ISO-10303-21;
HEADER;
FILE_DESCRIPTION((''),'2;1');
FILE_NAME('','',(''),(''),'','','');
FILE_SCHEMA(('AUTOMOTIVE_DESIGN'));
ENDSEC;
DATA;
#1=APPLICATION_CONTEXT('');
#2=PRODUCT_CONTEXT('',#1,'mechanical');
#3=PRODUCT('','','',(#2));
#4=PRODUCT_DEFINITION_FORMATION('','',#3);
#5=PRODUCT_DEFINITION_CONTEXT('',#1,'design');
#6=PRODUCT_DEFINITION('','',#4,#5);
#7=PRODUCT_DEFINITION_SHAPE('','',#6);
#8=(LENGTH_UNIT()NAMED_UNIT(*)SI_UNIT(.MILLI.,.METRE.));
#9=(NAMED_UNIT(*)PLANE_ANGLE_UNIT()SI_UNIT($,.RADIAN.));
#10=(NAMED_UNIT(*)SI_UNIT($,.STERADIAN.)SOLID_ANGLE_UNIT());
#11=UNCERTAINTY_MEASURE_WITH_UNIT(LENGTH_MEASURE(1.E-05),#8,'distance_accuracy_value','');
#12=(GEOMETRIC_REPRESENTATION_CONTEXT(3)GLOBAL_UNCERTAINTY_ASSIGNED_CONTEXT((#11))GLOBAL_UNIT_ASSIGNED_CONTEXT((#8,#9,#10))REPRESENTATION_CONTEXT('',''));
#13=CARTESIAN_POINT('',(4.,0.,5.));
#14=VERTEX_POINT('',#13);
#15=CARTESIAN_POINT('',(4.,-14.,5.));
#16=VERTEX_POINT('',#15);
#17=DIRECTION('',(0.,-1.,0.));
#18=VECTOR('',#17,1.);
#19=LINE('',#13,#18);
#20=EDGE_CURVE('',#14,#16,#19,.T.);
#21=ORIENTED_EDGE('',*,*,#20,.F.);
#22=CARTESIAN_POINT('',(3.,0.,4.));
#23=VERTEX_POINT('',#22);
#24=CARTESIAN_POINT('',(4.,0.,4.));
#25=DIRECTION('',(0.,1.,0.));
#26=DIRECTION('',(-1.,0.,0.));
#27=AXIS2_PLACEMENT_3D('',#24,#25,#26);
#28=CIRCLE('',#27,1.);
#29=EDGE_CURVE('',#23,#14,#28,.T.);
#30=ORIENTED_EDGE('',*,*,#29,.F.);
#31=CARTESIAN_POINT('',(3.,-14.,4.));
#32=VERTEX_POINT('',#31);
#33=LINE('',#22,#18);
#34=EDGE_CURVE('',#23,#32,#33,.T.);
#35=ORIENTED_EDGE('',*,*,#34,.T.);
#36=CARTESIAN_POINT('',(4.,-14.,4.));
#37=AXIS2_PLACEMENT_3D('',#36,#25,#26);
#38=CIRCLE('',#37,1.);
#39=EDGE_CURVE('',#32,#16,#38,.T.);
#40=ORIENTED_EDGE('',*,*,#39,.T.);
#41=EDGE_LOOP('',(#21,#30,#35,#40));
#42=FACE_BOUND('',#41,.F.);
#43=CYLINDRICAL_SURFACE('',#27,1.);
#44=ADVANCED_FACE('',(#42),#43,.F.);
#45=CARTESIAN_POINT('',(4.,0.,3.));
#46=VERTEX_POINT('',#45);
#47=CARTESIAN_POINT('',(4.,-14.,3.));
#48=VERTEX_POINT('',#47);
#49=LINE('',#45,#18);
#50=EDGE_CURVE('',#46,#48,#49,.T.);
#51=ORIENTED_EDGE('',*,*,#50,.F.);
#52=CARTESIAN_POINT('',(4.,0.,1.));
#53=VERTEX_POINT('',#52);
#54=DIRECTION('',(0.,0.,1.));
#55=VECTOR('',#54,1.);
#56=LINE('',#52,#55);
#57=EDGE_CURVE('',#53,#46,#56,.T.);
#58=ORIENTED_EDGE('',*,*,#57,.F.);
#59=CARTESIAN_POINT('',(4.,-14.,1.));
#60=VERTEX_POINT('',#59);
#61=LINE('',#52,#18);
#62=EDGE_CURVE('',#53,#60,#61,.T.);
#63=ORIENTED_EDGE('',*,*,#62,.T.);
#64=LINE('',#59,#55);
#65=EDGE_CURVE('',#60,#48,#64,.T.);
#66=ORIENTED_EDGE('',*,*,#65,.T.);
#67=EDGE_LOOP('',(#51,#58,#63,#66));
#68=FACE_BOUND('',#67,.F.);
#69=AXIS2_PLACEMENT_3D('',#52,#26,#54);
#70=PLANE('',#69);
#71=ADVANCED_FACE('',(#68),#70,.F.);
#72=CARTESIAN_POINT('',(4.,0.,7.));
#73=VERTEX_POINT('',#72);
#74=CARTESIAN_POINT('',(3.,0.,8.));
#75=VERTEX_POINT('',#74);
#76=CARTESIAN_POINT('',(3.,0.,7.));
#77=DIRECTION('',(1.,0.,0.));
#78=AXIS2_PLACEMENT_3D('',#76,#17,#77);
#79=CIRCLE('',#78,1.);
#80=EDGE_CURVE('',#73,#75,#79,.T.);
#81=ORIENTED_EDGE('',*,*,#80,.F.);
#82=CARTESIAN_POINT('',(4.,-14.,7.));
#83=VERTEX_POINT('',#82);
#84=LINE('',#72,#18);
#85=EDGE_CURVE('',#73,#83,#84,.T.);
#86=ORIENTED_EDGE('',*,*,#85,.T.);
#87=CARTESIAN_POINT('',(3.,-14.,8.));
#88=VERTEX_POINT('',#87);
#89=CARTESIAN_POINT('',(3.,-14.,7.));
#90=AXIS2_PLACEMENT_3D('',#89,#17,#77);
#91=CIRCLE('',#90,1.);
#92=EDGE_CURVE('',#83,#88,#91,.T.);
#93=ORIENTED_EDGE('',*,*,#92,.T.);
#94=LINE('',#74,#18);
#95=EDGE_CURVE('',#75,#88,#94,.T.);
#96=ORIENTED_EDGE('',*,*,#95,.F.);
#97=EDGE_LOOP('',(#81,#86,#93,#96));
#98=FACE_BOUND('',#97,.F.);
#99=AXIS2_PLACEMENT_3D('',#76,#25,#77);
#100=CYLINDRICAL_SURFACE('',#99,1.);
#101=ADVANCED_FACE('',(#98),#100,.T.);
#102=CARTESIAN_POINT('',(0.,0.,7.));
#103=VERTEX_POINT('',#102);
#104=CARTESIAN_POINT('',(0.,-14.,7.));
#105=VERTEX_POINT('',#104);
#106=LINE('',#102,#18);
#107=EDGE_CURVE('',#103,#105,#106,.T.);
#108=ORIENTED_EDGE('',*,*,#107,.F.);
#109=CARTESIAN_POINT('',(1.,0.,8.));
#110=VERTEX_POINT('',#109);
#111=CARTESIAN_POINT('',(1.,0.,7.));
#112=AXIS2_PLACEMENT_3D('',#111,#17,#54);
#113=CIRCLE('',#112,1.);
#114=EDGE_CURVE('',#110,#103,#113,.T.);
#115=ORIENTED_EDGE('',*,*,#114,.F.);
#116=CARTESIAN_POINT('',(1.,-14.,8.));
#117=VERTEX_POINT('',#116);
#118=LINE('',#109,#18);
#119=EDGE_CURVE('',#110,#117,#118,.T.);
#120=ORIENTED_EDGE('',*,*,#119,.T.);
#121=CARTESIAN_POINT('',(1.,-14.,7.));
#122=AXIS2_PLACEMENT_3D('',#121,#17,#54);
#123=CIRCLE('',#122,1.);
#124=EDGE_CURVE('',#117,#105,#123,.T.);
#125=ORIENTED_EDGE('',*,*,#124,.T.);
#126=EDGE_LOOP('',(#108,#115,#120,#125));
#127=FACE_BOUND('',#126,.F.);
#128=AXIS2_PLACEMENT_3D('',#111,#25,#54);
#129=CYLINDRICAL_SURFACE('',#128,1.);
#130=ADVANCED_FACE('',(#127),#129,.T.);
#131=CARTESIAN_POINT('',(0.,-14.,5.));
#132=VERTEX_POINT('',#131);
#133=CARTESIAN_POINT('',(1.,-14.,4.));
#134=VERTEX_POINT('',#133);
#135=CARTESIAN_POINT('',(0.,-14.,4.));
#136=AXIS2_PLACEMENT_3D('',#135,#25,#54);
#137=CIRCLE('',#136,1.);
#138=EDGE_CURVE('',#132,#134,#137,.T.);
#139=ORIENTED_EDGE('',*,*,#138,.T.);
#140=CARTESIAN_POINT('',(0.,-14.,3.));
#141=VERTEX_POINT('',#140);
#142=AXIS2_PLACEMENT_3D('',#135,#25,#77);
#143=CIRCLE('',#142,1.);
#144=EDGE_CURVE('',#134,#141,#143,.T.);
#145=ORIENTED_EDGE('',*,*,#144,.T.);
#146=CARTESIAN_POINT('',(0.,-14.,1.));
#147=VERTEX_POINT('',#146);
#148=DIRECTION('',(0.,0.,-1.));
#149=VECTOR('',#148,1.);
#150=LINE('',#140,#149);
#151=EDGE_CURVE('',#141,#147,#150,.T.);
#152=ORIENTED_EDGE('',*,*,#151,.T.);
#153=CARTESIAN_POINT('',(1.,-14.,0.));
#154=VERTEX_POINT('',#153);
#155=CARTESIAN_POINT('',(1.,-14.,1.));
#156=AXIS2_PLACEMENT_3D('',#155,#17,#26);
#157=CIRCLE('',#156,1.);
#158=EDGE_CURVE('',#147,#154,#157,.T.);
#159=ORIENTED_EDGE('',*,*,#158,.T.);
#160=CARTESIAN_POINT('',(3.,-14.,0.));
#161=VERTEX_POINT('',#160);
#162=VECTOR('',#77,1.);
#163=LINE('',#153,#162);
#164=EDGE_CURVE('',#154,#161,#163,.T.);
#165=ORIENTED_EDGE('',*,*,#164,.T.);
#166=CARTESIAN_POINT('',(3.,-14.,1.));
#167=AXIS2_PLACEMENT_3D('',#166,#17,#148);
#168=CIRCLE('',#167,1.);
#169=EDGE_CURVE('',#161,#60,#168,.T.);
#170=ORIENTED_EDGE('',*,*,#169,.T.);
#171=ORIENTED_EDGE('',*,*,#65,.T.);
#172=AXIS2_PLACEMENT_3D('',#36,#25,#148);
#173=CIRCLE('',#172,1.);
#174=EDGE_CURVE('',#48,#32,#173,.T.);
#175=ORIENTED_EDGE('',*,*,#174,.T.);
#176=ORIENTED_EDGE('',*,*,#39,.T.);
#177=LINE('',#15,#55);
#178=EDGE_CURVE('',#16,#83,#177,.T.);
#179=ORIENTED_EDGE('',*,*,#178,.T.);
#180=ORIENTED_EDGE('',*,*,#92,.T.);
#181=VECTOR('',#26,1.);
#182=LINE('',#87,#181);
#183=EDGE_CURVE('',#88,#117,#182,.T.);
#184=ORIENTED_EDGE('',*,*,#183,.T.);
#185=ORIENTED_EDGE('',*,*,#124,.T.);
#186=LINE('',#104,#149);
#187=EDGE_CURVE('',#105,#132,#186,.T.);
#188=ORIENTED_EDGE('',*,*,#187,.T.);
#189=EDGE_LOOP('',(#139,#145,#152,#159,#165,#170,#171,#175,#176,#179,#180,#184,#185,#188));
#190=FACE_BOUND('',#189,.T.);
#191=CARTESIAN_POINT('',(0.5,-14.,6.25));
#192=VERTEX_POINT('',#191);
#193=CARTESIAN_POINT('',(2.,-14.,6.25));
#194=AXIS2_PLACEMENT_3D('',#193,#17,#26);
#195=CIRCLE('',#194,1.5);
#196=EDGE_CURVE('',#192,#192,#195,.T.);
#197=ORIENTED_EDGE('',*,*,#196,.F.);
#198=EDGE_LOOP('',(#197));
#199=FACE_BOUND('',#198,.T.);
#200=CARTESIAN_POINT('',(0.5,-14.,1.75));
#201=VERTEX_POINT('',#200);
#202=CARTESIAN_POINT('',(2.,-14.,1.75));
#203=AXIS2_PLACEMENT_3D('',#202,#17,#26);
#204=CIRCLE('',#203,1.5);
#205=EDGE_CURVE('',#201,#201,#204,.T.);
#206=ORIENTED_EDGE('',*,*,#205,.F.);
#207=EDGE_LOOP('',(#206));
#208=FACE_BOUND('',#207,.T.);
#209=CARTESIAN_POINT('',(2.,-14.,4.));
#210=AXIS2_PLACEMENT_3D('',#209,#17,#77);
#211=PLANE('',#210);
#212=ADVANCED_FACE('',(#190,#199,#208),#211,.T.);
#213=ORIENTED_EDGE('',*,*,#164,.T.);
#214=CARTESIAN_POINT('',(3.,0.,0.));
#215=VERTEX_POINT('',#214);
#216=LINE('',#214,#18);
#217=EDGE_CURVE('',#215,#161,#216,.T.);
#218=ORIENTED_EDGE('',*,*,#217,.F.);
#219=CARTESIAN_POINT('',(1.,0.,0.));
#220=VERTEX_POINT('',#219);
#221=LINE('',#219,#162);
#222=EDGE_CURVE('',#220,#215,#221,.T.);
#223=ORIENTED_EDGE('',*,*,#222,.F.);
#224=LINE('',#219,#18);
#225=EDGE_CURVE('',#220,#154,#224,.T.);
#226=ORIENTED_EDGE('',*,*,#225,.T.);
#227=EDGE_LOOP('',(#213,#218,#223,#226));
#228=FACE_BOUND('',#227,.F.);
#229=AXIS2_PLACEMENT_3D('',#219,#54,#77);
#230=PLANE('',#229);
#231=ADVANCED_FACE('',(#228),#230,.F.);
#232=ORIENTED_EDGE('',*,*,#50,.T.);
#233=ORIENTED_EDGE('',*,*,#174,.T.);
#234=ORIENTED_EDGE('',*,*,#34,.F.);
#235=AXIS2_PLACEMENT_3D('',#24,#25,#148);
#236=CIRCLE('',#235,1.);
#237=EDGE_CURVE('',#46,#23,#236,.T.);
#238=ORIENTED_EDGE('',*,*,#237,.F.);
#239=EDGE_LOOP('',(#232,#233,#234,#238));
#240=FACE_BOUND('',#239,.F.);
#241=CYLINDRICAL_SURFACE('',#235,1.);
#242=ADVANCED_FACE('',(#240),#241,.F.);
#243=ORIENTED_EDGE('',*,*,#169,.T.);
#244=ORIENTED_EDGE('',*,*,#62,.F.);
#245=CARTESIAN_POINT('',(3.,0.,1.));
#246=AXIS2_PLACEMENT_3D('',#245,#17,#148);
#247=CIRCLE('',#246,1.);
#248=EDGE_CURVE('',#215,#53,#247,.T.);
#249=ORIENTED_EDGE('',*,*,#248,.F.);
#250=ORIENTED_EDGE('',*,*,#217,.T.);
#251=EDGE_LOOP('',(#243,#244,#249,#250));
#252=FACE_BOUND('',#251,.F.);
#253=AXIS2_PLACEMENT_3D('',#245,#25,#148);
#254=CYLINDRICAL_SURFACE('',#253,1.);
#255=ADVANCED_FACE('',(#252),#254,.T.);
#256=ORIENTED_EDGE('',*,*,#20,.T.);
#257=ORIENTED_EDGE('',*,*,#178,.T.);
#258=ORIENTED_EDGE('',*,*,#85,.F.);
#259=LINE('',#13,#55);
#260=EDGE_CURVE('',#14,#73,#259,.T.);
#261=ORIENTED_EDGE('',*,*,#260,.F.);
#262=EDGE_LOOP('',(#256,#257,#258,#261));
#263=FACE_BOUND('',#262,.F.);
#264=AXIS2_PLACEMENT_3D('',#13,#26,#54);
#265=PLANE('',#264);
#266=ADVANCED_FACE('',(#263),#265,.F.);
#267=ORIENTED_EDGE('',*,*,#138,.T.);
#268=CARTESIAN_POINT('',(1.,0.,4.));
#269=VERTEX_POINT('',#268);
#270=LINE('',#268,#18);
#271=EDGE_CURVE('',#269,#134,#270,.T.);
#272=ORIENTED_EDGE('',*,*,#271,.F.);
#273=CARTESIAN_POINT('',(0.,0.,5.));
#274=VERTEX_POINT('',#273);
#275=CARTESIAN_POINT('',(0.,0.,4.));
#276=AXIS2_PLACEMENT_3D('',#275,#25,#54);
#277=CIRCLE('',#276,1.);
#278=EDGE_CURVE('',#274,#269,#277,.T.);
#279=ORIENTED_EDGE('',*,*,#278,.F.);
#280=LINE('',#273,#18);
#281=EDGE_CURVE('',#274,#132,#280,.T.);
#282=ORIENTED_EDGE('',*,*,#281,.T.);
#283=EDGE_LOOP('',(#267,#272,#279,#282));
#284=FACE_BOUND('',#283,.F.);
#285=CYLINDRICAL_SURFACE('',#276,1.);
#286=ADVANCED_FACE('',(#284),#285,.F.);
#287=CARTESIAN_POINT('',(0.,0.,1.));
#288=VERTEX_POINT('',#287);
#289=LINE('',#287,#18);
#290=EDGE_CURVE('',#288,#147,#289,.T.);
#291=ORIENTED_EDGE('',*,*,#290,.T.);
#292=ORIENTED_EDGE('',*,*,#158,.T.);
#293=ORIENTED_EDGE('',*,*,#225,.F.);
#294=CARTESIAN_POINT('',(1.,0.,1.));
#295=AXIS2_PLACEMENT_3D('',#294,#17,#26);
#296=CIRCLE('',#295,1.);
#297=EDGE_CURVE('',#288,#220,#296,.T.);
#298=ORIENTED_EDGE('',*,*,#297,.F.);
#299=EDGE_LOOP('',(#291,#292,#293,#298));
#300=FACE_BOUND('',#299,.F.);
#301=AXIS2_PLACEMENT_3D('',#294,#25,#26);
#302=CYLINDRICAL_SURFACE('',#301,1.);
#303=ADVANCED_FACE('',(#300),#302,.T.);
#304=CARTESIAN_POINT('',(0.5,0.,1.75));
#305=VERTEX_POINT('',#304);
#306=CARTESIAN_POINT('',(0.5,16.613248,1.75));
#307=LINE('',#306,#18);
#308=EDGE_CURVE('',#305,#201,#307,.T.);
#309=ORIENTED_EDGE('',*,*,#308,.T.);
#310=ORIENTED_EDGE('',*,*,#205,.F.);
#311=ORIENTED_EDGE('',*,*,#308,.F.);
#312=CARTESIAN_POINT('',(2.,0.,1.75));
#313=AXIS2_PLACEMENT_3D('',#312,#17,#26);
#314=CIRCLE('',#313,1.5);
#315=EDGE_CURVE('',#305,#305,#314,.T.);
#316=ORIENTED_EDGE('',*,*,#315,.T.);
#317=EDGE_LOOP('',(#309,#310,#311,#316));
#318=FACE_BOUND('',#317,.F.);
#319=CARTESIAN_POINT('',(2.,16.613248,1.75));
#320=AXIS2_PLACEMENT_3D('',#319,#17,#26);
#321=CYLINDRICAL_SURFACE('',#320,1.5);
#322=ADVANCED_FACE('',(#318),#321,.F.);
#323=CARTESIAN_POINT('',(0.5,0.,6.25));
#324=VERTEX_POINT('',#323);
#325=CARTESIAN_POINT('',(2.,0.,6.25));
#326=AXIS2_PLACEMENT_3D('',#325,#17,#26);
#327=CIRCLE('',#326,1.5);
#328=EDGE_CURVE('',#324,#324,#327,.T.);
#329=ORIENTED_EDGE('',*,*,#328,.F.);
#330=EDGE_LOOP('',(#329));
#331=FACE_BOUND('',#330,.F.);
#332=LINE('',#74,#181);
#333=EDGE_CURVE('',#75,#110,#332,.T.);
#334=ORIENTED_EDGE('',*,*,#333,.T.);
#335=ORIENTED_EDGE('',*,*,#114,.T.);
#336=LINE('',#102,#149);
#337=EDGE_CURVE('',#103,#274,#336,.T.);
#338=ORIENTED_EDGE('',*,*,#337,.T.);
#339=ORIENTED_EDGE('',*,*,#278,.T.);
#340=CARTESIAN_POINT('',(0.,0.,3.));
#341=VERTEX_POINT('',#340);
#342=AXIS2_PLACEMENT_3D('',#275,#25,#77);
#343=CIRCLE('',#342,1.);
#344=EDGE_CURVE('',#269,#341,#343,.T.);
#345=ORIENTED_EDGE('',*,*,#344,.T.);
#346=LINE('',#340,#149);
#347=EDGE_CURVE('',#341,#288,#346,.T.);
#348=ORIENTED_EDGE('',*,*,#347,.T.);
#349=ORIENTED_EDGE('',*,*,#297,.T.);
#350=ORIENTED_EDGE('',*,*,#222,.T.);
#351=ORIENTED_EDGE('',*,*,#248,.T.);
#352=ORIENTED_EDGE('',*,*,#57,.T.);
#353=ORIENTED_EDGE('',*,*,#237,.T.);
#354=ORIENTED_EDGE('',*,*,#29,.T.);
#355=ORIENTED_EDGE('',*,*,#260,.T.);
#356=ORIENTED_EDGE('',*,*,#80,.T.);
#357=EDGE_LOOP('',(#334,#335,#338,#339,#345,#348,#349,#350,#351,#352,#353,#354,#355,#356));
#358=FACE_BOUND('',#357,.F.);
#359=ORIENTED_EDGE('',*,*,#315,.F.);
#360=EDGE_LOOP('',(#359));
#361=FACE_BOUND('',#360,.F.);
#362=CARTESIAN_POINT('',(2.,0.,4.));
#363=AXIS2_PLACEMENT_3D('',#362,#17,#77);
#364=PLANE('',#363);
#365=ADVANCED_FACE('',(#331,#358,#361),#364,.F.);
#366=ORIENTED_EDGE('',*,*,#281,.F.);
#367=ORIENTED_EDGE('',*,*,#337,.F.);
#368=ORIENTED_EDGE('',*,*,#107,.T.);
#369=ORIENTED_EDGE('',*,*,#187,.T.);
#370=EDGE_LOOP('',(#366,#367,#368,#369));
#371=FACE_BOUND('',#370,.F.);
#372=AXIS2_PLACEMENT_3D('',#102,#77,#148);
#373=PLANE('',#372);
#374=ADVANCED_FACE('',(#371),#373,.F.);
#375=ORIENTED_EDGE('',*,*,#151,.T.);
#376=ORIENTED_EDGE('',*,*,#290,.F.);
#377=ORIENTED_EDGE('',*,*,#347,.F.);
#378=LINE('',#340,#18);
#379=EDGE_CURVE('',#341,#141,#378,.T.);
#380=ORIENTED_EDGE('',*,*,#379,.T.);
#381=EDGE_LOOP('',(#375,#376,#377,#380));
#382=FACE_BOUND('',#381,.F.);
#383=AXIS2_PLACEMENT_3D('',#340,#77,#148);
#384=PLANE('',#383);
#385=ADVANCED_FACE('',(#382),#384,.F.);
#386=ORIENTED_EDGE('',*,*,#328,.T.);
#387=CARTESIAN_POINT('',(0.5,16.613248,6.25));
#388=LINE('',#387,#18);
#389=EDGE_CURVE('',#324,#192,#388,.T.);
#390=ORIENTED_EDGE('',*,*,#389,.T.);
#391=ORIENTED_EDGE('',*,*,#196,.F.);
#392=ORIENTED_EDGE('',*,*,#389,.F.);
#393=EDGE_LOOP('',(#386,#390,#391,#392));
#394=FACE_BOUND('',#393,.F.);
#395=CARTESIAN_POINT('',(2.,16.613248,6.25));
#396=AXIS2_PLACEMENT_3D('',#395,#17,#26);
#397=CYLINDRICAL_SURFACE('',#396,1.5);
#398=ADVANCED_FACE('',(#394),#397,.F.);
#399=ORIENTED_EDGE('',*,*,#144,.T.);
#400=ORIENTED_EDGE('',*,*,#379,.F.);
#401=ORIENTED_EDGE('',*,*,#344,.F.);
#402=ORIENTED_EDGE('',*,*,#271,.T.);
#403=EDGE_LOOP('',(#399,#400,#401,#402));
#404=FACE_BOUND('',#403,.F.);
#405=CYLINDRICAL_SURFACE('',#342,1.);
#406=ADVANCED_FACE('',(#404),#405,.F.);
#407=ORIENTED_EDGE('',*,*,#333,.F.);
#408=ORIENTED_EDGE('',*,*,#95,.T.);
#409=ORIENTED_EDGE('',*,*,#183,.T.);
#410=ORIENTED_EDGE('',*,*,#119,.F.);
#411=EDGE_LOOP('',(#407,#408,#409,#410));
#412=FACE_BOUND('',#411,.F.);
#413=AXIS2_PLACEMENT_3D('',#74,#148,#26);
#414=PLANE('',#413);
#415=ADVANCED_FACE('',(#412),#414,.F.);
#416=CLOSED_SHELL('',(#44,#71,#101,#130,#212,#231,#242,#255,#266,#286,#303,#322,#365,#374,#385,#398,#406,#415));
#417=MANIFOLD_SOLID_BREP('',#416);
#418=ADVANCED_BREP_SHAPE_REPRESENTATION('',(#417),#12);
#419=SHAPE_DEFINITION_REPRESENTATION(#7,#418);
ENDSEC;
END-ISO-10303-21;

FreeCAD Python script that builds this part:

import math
import FreeCAD as App
import Part
import Sketcher

doc = App.newDocument("Part")
params = doc.addObject("Spreadsheet::Sheet", "Params")
for row, (alias, value) in enumerate([
    ("sketch1_radius", "1 mm"),
    ("sketch1_width", "2 mm"),
    ("pad1_length", "14 mm"),
    ("sketch2_diameter", "3 mm"),
    ("hole_diameter", "3 mm"),
], start=1):
    params.set(f"A{row}", alias)
    params.set(f"B{row}", "=" + value)
    params.setAlias(f"B{row}", alias)

body = doc.addObject("PartDesign::Body", "Body")

# Sketch on XZ plane
sketch1 = doc.addObject("Sketcher::SketchObject", "Sketch")
body.addObject(sketch1)
sketch1.AttachmentSupport = (doc.XZ_Plane, [""])
sketch1.MapMode = "FlatFace"
sketch1.addGeometry([
    Part.ArcOfCircle(Part.Circle(App.Vector(1, 1, 0), App.Vector(0, 0, 1), 1), math.radians(180), math.radians(270)),  # 0
    Part.LineSegment(App.Vector(1, 0, 0), App.Vector(3, 0, 0)),  # 1
    Part.ArcOfCircle(Part.Circle(App.Vector(3, 1, 0), App.Vector(0, 0, 1), 1), math.radians(-90), math.radians(0)),  # 2
    Part.LineSegment(App.Vector(4, 1, 0), App.Vector(4, 3, 0)),  # 3
    Part.ArcOfCircle(Part.Circle(App.Vector(4, 4, 0), App.Vector(0, 0, 1), 1), math.radians(180), math.radians(270)),  # 4
    Part.ArcOfCircle(Part.Circle(App.Vector(4, 4, 0), App.Vector(0, 0, 1), 1), math.radians(90), math.radians(180)),  # 5
    Part.LineSegment(App.Vector(4, 5, 0), App.Vector(4, 7, 0)),  # 6
    Part.ArcOfCircle(Part.Circle(App.Vector(3, 7, 0), App.Vector(0, 0, 1), 1), math.radians(0), math.radians(90)),  # 7
    Part.LineSegment(App.Vector(3, 8, 0), App.Vector(1, 8, 0)),  # 8
    Part.ArcOfCircle(Part.Circle(App.Vector(1, 7, 0), App.Vector(0, 0, 1), 1), math.radians(90), math.radians(180)),  # 9
    Part.LineSegment(App.Vector(0, 7, 0), App.Vector(0, 5, 0)),  # 10
    Part.ArcOfCircle(Part.Circle(App.Vector(0, 4, 0), App.Vector(0, 0, 1), 1), math.radians(0), math.radians(90)),  # 11
    Part.ArcOfCircle(Part.Circle(App.Vector(0, 4, 0), App.Vector(0, 0, 1), 1), math.radians(-90), math.radians(0)),  # 12
    Part.LineSegment(App.Vector(0, 3, 0), App.Vector(0, 1, 0)),  # 13
], False)
sketch1.addConstraint([
    Sketcher.Constraint("Tangent", 0, 2, 1, 1),
    Sketcher.Constraint("Tangent", 1, 2, 2, 1),
    Sketcher.Constraint("Tangent", 2, 2, 3, 1),
    Sketcher.Constraint("Coincident", 3, 2, 4, 2),
    Sketcher.Constraint("Tangent", 4, 1, 5, 2),
    Sketcher.Constraint("Coincident", 5, 1, 6, 1),
    Sketcher.Constraint("Tangent", 6, 2, 7, 1),
    Sketcher.Constraint("Tangent", 7, 2, 8, 1),
    Sketcher.Constraint("Tangent", 8, 2, 9, 1),
    Sketcher.Constraint("Tangent", 9, 2, 10, 1),
    Sketcher.Constraint("Coincident", 10, 2, 11, 2),
    Sketcher.Constraint("Tangent", 11, 1, 12, 2),
    Sketcher.Constraint("Coincident", 12, 1, 13, 1),
    Sketcher.Constraint("Tangent", 13, 2, 0, 1),
    Sketcher.Constraint("Horizontal", 1),
    Sketcher.Constraint("Vertical", 3),
    Sketcher.Constraint("Vertical", 6),
    Sketcher.Constraint("Horizontal", 8),
    Sketcher.Constraint("Vertical", 10),
    Sketcher.Constraint("Vertical", 13),
    Sketcher.Constraint("Equal", 0, 2),
    Sketcher.Constraint("Equal", 2, 4),
    Sketcher.Constraint("Equal", 4, 5),
    Sketcher.Constraint("Equal", 5, 7),
    Sketcher.Constraint("Equal", 7, 9),
    Sketcher.Constraint("Equal", 9, 11),
    Sketcher.Constraint("Equal", 11, 12),
    Sketcher.Constraint("PointOnObject", 11, 3, -2),
    Sketcher.Constraint("PointOnObject", 0, 2, -1),
    Sketcher.Constraint("PointOnObject", 9, 2, -2),
    Sketcher.Constraint("PointOnObject", 12, 1, -2),
    Sketcher.Constraint("Horizontal", 5, 3, 11, 3),
    Sketcher.Constraint("Horizontal", 12, 3, 4, 1),
    Sketcher.Constraint("Horizontal", 4, 1, 11, 1),
    Sketcher.Constraint("Vertical", 2, 3, 7, 3),
    Sketcher.Constraint("Vertical", 5, 3, 2, 2),
    Sketcher.Constraint("Equal", 8, 3),
    Sketcher.Constraint("Equal", 3, 6),
    Sketcher.Constraint("Radius", 0, 1.0),
    Sketcher.Constraint("DistanceX", 1, 1, 1, 2, 2.0),
])
sketch1.setExpression("Constraints[38]", "Params.sketch1_radius")
sketch1.setExpression("Constraints[39]", "Params.sketch1_width")
pad1 = doc.addObject("PartDesign::Pad", "Pad")
body.addObject(pad1)
pad1.Profile = sketch1
pad1.setExpression("Length", "Params.pad1_length")

# Sketch on XZ plane
sketch2 = doc.addObject("Sketcher::SketchObject", "Sketch001")
body.addObject(sketch2)
sketch2.AttachmentSupport = (doc.XZ_Plane, [""])
sketch2.MapMode = "FlatFace"
sketch2.addGeometry([
    Part.Circle(App.Vector(2, 6.2, 0), App.Vector(0, 0, 1), 1.5),
    Part.Circle(App.Vector(2, 1.8, 0), App.Vector(0, 0, 1), 1.5),
], False)
sketch2.addConstraint([
    Sketcher.Constraint("Equal", 0, 1),
    Sketcher.Constraint("Vertical", 0, 3, 1, 3),
    Sketcher.Constraint("Diameter", 0, 3.0),
    Sketcher.Constraint("DistanceX", -1, 1, 0, 3, 2.0),
    Sketcher.Constraint("DistanceY", 1, 3, 0, 3, 4.5),
    Sketcher.Constraint("DistanceY", -1, 1, 0, 3, 6.25),
])
sketch2.setExpression("Constraints[2]", "Params.sketch2_diameter")
doc.recompute()
hole = doc.addObject("PartDesign::Hole", "Hole")
body.addObject(hole)
hole.Profile = sketch2
hole.ThreadType = "None"
hole.setExpression("Diameter", "Params.hole_diameter")
hole.DepthType = "ThroughAll"
hole.Reversed = True

doc.recompute()
